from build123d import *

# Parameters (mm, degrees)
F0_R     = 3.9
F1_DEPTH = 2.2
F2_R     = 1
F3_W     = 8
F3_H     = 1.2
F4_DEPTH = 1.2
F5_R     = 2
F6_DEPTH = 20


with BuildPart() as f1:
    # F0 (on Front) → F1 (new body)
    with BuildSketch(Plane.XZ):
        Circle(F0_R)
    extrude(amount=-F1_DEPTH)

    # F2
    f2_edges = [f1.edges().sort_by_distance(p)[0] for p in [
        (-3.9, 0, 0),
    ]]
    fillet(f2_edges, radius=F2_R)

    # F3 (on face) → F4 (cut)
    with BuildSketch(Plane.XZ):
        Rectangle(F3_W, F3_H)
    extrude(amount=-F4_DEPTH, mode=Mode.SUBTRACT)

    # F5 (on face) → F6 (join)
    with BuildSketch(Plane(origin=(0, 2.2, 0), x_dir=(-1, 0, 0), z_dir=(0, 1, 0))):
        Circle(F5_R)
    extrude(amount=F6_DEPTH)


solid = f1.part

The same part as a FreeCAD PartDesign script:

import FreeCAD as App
import Part
import Sketcher
from FreeCAD import Vector
Q = App.Units.Quantity


def edges_at(feature, points):
    """Names of the edges that pass closest to the given points."""
    edges = feature.Shape.Edges
    near = lambda p: min(range(len(edges)), key=lambda i: edges[i].distToShape(Part.Vertex(*p))[0])
    return sorted({f"Edge{near(p) + 1}" for p in points})


def add_polygon(sketch, points):
    """Adds a closed chain of lines whose ends are joined by coincident constraints."""
    first, n = sketch.GeometryCount, len(points)
    for a, b in zip(points, points[1:] + points[:1]):
        sketch.addGeometry(Part.LineSegment(App.Vector(*a, 0), App.Vector(*b, 0)), False)
    for i in range(n):
        sketch.addConstraint(Sketcher.Constraint("Coincident", first + i, 2, first + (i + 1) % n, 1))

doc = App.newDocument("Part")
body = doc.addObject("PartDesign::Body", "Body")

sketch1 = body.newObject("Sketcher::SketchObject", "Sketch")
sketch1.AttachmentSupport = (doc.getObject("XZ_Plane"), [""])
sketch1.MapMode = "FlatFace"
sketch1.addGeometry(Part.Circle(Vector(0, 0, 0), Vector(0, 0, 1), 3.9), False)
sketch1.addConstraint(Sketcher.Constraint("Coincident", 0, 3, -1, 1))
sketch1.addConstraint(Sketcher.Constraint("Diameter", 0, Q("7.8 mm")))
pad1 = body.newObject("PartDesign::Pad", "Pad")
pad1.Profile = sketch1
pad1.Length = 2.2
pad1.Reversed = True
doc.recompute()

fillet = body.newObject("PartDesign::Fillet", "Fillet")
fillet.Base = (pad1, edges_at(pad1, [(-3.9, 0, 0)]))
fillet.Radius = 1

sketch2 = body.newObject("Sketcher::SketchObject", "Sketch001")
sketch2.AttachmentSupport = (doc.getObject("XZ_Plane"), [""])
sketch2.MapMode = "FlatFace"
add_polygon(sketch2, [(-4, 0.6), (-4, -0.6), (4, -0.6), (4, 0.6)])
sketch2.addConstraint(Sketcher.Constraint("Vertical", 0))
sketch2.addConstraint(Sketcher.Constraint("Horizontal", 1))
sketch2.addConstraint(Sketcher.Constraint("Vertical", 2))
sketch2.addConstraint(Sketcher.Constraint("Horizontal", 3))
sketch2.addConstraint(Sketcher.Constraint("Symmetric", 0, 2, 2, 2, -1, 1))
sketch2.addConstraint(Sketcher.Constraint("DistanceX", 1, 1, 1, 2, Q("8 mm")))
sketch2.addConstraint(Sketcher.Constraint("DistanceY", 0, 2, 0, 1, Q("1.2 mm")))
pocket1 = body.newObject("PartDesign::Pocket", "Pocket")
pocket1.Profile = sketch2
pocket1.Length = 1.2

sketch3 = body.newObject("Sketcher::SketchObject", "Sketch002")
sketch3.AttachmentSupport = (doc.getObject("XZ_Plane"), [""])
sketch3.MapMode = "FlatFace"
sketch3.AttachmentOffset = App.Placement(Vector(0, 0, -2.2), App.Rotation())
sketch3.addGeometry(Part.Circle(Vector(0, 0, 0), Vector(0, 0, 1), 2), False)
sketch3.addConstraint(Sketcher.Constraint("Coincident", 0, 3, -1, 1))
sketch3.addConstraint(Sketcher.Constraint("Diameter", 0, Q("4 mm")))
pad2 = body.newObject("PartDesign::Pad", "Pad001")
pad2.Profile = sketch3
pad2.Length = 20
pad2.Reversed = True

doc.recompute()
